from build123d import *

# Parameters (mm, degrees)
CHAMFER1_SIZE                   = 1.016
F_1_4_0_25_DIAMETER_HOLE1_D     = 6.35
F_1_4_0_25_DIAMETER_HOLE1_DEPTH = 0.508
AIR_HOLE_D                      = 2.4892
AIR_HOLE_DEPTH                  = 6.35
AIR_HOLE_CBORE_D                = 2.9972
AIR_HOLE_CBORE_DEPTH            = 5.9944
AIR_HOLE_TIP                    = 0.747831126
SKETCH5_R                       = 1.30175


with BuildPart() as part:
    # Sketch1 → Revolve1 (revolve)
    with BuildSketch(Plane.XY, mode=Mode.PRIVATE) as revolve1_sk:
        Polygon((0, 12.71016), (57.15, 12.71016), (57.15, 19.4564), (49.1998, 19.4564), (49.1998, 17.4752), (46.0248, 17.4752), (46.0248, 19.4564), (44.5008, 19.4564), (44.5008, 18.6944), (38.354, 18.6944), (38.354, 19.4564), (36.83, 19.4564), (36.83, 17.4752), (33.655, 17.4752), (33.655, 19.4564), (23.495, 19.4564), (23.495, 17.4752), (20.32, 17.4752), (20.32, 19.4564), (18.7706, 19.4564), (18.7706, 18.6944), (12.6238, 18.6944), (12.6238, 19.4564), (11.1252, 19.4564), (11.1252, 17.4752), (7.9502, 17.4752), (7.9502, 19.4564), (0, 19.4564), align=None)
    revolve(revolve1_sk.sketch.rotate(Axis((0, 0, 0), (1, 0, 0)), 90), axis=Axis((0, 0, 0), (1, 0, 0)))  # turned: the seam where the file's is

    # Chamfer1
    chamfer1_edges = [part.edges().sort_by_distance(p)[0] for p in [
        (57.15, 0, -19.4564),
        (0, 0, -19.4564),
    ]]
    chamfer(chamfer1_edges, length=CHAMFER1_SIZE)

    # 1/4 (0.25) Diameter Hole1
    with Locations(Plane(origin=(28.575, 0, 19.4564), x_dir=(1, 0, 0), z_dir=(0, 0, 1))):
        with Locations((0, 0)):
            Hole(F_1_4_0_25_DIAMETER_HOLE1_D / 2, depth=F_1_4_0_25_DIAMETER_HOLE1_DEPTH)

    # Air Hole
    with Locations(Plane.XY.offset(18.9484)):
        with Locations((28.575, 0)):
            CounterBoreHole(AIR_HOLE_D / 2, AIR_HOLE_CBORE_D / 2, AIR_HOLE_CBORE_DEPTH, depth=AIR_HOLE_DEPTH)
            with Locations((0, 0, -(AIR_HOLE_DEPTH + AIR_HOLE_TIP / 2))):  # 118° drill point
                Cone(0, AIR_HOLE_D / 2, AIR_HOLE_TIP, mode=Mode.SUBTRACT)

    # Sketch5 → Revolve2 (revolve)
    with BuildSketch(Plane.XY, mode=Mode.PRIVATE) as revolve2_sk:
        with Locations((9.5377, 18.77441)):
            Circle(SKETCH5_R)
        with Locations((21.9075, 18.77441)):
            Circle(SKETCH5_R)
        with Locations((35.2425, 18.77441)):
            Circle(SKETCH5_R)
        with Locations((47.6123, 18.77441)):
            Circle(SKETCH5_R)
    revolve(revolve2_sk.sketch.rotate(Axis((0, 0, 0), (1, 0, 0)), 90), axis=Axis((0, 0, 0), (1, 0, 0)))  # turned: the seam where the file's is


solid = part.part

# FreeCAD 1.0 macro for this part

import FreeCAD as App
import Part
import Sketcher
Q = App.Units.Quantity


def edges_at(feature, points):
    """Names of the edges that pass closest to the given points."""
    edges = feature.Shape.Edges
    near = lambda p: min(range(len(edges)), key=lambda i: edges[i].distToShape(Part.Vertex(*p))[0])
    return sorted({f"Edge{near(p) + 1}" for p in points})

doc = App.newDocument("Part")
params = doc.addObject("Spreadsheet::Sheet", "Params")
for row, (alias, value) in enumerate([
    ("sketch1_width", "0.4 in"),
    ("sketch1_width2", "2.25 in"),
    ("sketch1_width3", "0.06 in"),
    ("sketch1_height", "0.03 in"),
    ("sketch1_width4", "0.313 in"),
    ("revolution_angle", "360 deg"),
    ("chamfer_size", "0.04 in"),
    ("sketch2_diameter", "0.25 in"),
    ("hole_diameter", "0.25 in"),
    ("hole_depth", "0.02 in"),
    ("sketch3_diameter", "0.098 in"),
    ("hole2_diameter", "0.098 in"),
    ("hole2_depth", "0.25 in"),
    ("hole2_cbore_diameter", "0.118 in"),
    ("hole2_cbore_depth", "0.236 in"),
    ("revolution2_angle", "360 deg"),
], start=1):
    params.set(f"A{row}", alias)
    params.set(f"B{row}", "=" + value)
    params.setAlias(f"B{row}", alias)

body = doc.addObject("PartDesign::Body", "Body")

# Sketch on XY plane
sketch1 = body.newObject("Sketcher::SketchObject", "Sketch")
sketch1.AttachmentSupport = (doc.getObject("XY_Plane"), [""])
sketch1.MapMode = "FlatFace"
sketch1.addGeometry([
    Part.LineSegment(App.Vector(0, 12.7, 0), App.Vector(57.1, 12.7, 0)),  # 0
    Part.LineSegment(App.Vector(57.1, 12.7, 0), App.Vector(57.1, 19.5, 0)),  # 1
    Part.LineSegment(App.Vector(57.1, 19.5, 0), App.Vector(49.2, 19.5, 0)),  # 2
    Part.LineSegment(App.Vector(49.2, 19.5, 0), App.Vector(49.2, 17.5, 0)),  # 3
    Part.LineSegment(App.Vector(49.2, 17.5, 0), App.Vector(46, 17.5, 0)),  # 4
    Part.LineSegment(App.Vector(46, 17.5, 0), App.Vector(46, 19.5, 0)),  # 5
    Part.LineSegment(App.Vector(46, 19.5, 0), App.Vector(44.5, 19.5, 0)),  # 6
    Part.LineSegment(App.Vector(44.5, 19.5, 0), App.Vector(44.5, 18.7, 0)),  # 7
    Part.LineSegment(App.Vector(44.5, 18.7, 0), App.Vector(38.4, 18.7, 0)),  # 8
    Part.LineSegment(App.Vector(38.4, 18.7, 0), App.Vector(38.4, 19.5, 0)),  # 9
    Part.LineSegment(App.Vector(38.4, 19.5, 0), App.Vector(36.8, 19.5, 0)),  # 10
    Part.LineSegment(App.Vector(36.8, 19.5, 0), App.Vector(36.8, 17.5, 0)),  # 11
    Part.LineSegment(App.Vector(36.8, 17.5, 0), App.Vector(33.7, 17.5, 0)),  # 12
    Part.LineSegment(App.Vector(33.7, 17.5, 0), App.Vector(33.7, 19.5, 0)),  # 13
    Part.LineSegment(App.Vector(33.7, 19.5, 0), App.Vector(23.5, 19.5, 0)),  # 14
    Part.LineSegment(App.Vector(23.5, 19.5, 0), App.Vector(23.5, 17.5, 0)),  # 15
    Part.LineSegment(App.Vector(23.5, 17.5, 0), App.Vector(20.3, 17.5, 0)),  # 16
    Part.LineSegment(App.Vector(20.3, 17.5, 0), App.Vector(20.3, 19.5, 0)),  # 17
    Part.LineSegment(App.Vector(20.3, 19.5, 0), App.Vector(18.8, 19.5, 0)),  # 18
    Part.LineSegment(App.Vector(18.8, 19.5, 0), App.Vector(18.8, 18.7, 0)),  # 19
    Part.LineSegment(App.Vector(18.8, 18.7, 0), App.Vector(12.6, 18.7, 0)),  # 20
    Part.LineSegment(App.Vector(12.6, 18.7, 0), App.Vector(12.6, 19.5, 0)),  # 21
    Part.LineSegment(App.Vector(12.6, 19.5, 0), App.Vector(11.1, 19.5, 0)),  # 22
    Part.LineSegment(App.Vector(11.1, 19.5, 0), App.Vector(11.1, 17.5, 0)),  # 23
    Part.LineSegment(App.Vector(11.1, 17.5, 0), App.Vector(8, 17.5, 0)),  # 24
    Part.LineSegment(App.Vector(8, 17.5, 0), App.Vector(8, 19.5, 0)),  # 25
    Part.LineSegment(App.Vector(8, 19.5, 0), App.Vector(0, 19.5, 0)),  # 26
    Part.LineSegment(App.Vector(0, 19.5, 0), App.Vector(0, 12.7, 0)),  # 27
], False)
sketch1.addConstraint([
    Sketcher.Constraint("Coincident", 0, 2, 1, 1),
    Sketcher.Constraint("Coincident", 1, 2, 2, 1),
    Sketcher.Constraint("Coincident", 2, 2, 3, 1),
    Sketcher.Constraint("Coincident", 3, 2, 4, 1),
    Sketcher.Constraint("Coincident", 4, 2, 5, 1),
    Sketcher.Constraint("Coincident", 5, 2, 6, 1),
    Sketcher.Constraint("Coincident", 6, 2, 7, 1),
    Sketcher.Constraint("Coincident", 7, 2, 8, 1),
    Sketcher.Constraint("Coincident", 8, 2, 9, 1),
    Sketcher.Constraint("Coincident", 9, 2, 10, 1),
    Sketcher.Constraint("Coincident", 10, 2, 11, 1),
    Sketcher.Constraint("Coincident", 11, 2, 12, 1),
    Sketcher.Constraint("Coincident", 12, 2, 13, 1),
    Sketcher.Constraint("Coincident", 13, 2, 14, 1),
    Sketcher.Constraint("Coincident", 14, 2, 15, 1),
    Sketcher.Constraint("Coincident", 15, 2, 16, 1),
    Sketcher.Constraint("Coincident", 16, 2, 17, 1),
    Sketcher.Constraint("Coincident", 17, 2, 18, 1),
    Sketcher.Constraint("Coincident", 18, 2, 19, 1),
    Sketcher.Constraint("Coincident", 19, 2, 20, 1),
    Sketcher.Constraint("Coincident", 20, 2, 21, 1),
    Sketcher.Constraint("Coincident", 21, 2, 22, 1),
    Sketcher.Constraint("Coincident", 22, 2, 23, 1),
    Sketcher.Constraint("Coincident", 23, 2, 24, 1),
    Sketcher.Constraint("Coincident", 24, 2, 25, 1),
    Sketcher.Constraint("Coincident", 25, 2, 26, 1),
    Sketcher.Constraint("Coincident", 26, 2, 27, 1),
    Sketcher.Constraint("Coincident", 27, 2, 0, 1),
    Sketcher.Constraint("Horizontal", 0),
    Sketcher.Constraint("Vertical", 1),
    Sketcher.Constraint("Horizontal", 2),
    Sketcher.Constraint("Vertical", 3),
    Sketcher.Constraint("Horizontal", 4),
    Sketcher.Constraint("Vertical", 5),
    Sketcher.Constraint("Horizontal", 6),
    Sketcher.Constraint("Vertical", 7),
    Sketcher.Constraint("Horizontal", 8),
    Sketcher.Constraint("Vertical", 9),
    Sketcher.Constraint("Horizontal", 10),
    Sketcher.Constraint("Vertical", 11),
    Sketcher.Constraint("Horizontal", 12),
    Sketcher.Constraint("Vertical", 13),
    Sketcher.Constraint("Horizontal", 14),
    Sketcher.Constraint("Vertical", 15),
    Sketcher.Constraint("Horizontal", 16),
    Sketcher.Constraint("Vertical", 17),
    Sketcher.Constraint("Horizontal", 18),
    Sketcher.Constraint("Vertical", 19),
    Sketcher.Constraint("Horizontal", 20),
    Sketcher.Constraint("Vertical", 21),
    Sketcher.Constraint("Horizontal", 22),
    Sketcher.Constraint("Vertical", 23),
    Sketcher.Constraint("Horizontal", 24),
    Sketcher.Constraint("Vertical", 25),
    Sketcher.Constraint("Horizontal", 26),
    Sketcher.Constraint("Vertical", 27),
    Sketcher.Constraint("PointOnObject", 26, 2, -2),
    Sketcher.Constraint("Horizontal", 2, 2, 5, 2),
    Sketcher.Constraint("Horizontal", 6, 2, 9, 2),
    Sketcher.Constraint("Horizontal", 4, 2, 11, 2),
    Sketcher.Constraint("Horizontal", 10, 2, 13, 2),
    Sketcher.Constraint("Horizontal", 12, 2, 15, 2),
    Sketcher.Constraint("Horizontal", 14, 2, 17, 2),
    Sketcher.Constraint("Horizontal", 8, 2, 19, 2),
    Sketcher.Constraint("Horizontal", 18, 2, 21, 2),
    Sketcher.Constraint("Horizontal", 16, 2, 23, 2),
    Sketcher.Constraint("Horizontal", 22, 2, 25, 2),
    Sketcher.Constraint("Equal", 6, 10),
    Sketcher.Constraint("Equal", 4, 12),
    Sketcher.Constraint("Equal", 12, 16),
    Sketcher.Constraint("Equal", 8, 20),
    Sketcher.Constraint("Equal", 16, 24),
    Sketcher.Constraint("Equal", 2, 26),
    Sketcher.Constraint("DistanceX", 14, 2, 14, 1, Q("0.4 in")),
    Sketcher.Constraint("DistanceX", 0, 1, 0, 2, Q("2.25 in")),
    Sketcher.Constraint("DistanceX", 6, 2, 6, 1, Q("0.06 in")),
    Sketcher.Constraint("DistanceY", 7, 2, 7, 1, Q("0.03 in")),
    Sketcher.Constraint("DistanceX", -1, 1, 16, 2, Q("0.8 in")),
    Sketcher.Constraint("DistanceX", 2, 2, 2, 1, Q("0.313 in")),
    Sketcher.Constraint("DistanceX", 4, 2, 4, 1, Q("0.125 in")),
    Sketcher.Constraint("DistanceX", 18, 2, 18, 1, Q("0.061 in")),
    Sketcher.Constraint("DistanceY", 3, 2, 3, 1, Q("0.078 in")),
    Sketcher.Constraint("DistanceY", 1, 1, 1, 2, Q("0.2656 in")),
    Sketcher.Constraint("DistanceY", -1, 1, 1, 2, Q("0.766 in")),
])
sketch1.setExpression("Constraints[73]", "Params.sketch1_width")
sketch1.setExpression("Constraints[74]", "Params.sketch1_width2")
sketch1.setExpression("Constraints[75]", "Params.sketch1_width3")
sketch1.setExpression("Constraints[76]", "Params.sketch1_height")
sketch1.setExpression("Constraints[78]", "Params.sketch1_width4")
revolution = body.newObject("PartDesign::Revolution", "Revolution")
revolution.Profile = sketch1
revolution.ReferenceAxis = (sketch1, ["H_Axis"])
revolution.setExpression("Angle", "Params.revolution_angle")
doc.recompute()

chamfer = body.newObject("PartDesign::Chamfer", "Chamfer")
chamfer.Base = (revolution, edges_at(revolution, [(57.15, 0, -19.456), (0, 0, -19.456)]))
chamfer.setExpression("Size", "Params.chamfer_size")

# Sketch on XY plane
sketch2 = body.newObject("Sketcher::SketchObject", "Sketch001")
sketch2.AttachmentSupport = (doc.getObject("XY_Plane"), [""])
sketch2.MapMode = "FlatFace"
sketch2.AttachmentOffset = App.Placement(App.Vector(0, 0, 0.766 * 25.4), App.Rotation())
sketch2.addGeometry(Part.Circle(App.Vector(28.6, 0, 0), App.Vector(0, 0, 1), 3.2), False)
sketch2.addConstraint([
    Sketcher.Constraint("PointOnObject", 0, 3, -1),
    Sketcher.Constraint("Diameter", 0, Q("0.25 in")),
    Sketcher.Constraint("DistanceX", -1, 1, 0, 3, Q("1.125 in")),
])
sketch2.setExpression("Constraints[1]", "Params.sketch2_diameter")
doc.recompute()
hole = body.newObject("PartDesign::Hole", "Hole")
hole.Profile = sketch2
hole.ThreadType = "None"
hole.setExpression("Diameter", "Params.hole_diameter")
hole.DepthType = "Dimension"
hole.setExpression("Depth", "Params.hole_depth")
hole.DrillPoint = "Flat"

# Sketch on XY plane
sketch3 = body.newObject("Sketcher::SketchObject", "Sketch002")
sketch3.AttachmentSupport = (doc.getObject("XY_Plane"), [""])
sketch3.MapMode = "FlatFace"
sketch3.AttachmentOffset = App.Placement(App.Vector(0, 0, 0.746 * 25.4), App.Rotation())
sketch3.addGeometry(Part.Circle(App.Vector(28.6, 0, 0), App.Vector(0, 0, 1), 1.2), False)
sketch3.addConstraint([
    Sketcher.Constraint("PointOnObject", 0, 3, -1),
    Sketcher.Constraint("Diameter", 0, Q("0.098 in")),
    Sketcher.Constraint("DistanceX", -1, 1, 0, 3, Q("1.125 in")),
])
sketch3.setExpression("Constraints[1]", "Params.sketch3_diameter")
doc.recompute()
hole2 = body.newObject("PartDesign::Hole", "Hole001")
hole2.Profile = sketch3
hole2.ThreadType = "None"
hole2.setExpression("Diameter", "Params.hole2_diameter")
hole2.DepthType = "Dimension"
hole2.setExpression("Depth", "Params.hole2_depth")
hole2.DrillPoint = "Angled"
hole2.DrillPointAngle = 118
hole2.HoleCutType = "Counterbore"
hole2.setExpression("HoleCutDiameter", "Params.hole2_cbore_diameter")
hole2.setExpression("HoleCutDepth", "Params.hole2_cbore_depth")

# Sketch on XY plane
sketch4 = body.newObject("Sketcher::SketchObject", "Sketch003")
sketch4.AttachmentSupport = (doc.getObject("XY_Plane"), [""])
sketch4.MapMode = "FlatFace"
sketch4.addGeometry([
    Part.Circle(App.Vector(9.5, 18.8, 0), App.Vector(0, 0, 1), 1.3),
    Part.Circle(App.Vector(21.9, 18.8, 0), App.Vector(0, 0, 1), 1.3),
    Part.Circle(App.Vector(35.2, 18.8, 0), App.Vector(0, 0, 1), 1.3),
    Part.Circle(App.Vector(47.6, 18.8, 0), App.Vector(0, 0, 1), 1.3),
], False)
sketch4.addConstraint([
    Sketcher.Constraint("Equal", 0, 1),
    Sketcher.Constraint("Equal", 1, 2),
    Sketcher.Constraint("Equal", 2, 3),
    Sketcher.Constraint("Horizontal", 0, 3, 1, 3),
    Sketcher.Constraint("Horizontal", 1, 3, 2, 3),
    Sketcher.Constraint("Horizontal", 2, 3, 3, 3),
    Sketcher.Constraint("Diameter", 0, Q("0.1025 in")),
    Sketcher.Constraint("DistanceX", 0, 3, 1, 3, Q("0.487 in")),
    Sketcher.Constraint("DistanceX", 1, 3, 2, 3, Q("0.525 in")),
    Sketcher.Constraint("DistanceX", 2, 3, 3, 3, Q("0.487 in")),
    Sketcher.Constraint("DistanceX", -1, 1, 0, 3, Q("0.3755 in")),
    Sketcher.Constraint("DistanceY", -1, 1, 0, 3, 18.77441),
])
revolution2 = body.newObject("PartDesign::Revolution", "Revolution001")
revolution2.Profile = sketch4
revolution2.ReferenceAxis = (sketch4, ["H_Axis"])
revolution2.setExpression("Angle", "Params.revolution2_angle")

doc.recompute()
